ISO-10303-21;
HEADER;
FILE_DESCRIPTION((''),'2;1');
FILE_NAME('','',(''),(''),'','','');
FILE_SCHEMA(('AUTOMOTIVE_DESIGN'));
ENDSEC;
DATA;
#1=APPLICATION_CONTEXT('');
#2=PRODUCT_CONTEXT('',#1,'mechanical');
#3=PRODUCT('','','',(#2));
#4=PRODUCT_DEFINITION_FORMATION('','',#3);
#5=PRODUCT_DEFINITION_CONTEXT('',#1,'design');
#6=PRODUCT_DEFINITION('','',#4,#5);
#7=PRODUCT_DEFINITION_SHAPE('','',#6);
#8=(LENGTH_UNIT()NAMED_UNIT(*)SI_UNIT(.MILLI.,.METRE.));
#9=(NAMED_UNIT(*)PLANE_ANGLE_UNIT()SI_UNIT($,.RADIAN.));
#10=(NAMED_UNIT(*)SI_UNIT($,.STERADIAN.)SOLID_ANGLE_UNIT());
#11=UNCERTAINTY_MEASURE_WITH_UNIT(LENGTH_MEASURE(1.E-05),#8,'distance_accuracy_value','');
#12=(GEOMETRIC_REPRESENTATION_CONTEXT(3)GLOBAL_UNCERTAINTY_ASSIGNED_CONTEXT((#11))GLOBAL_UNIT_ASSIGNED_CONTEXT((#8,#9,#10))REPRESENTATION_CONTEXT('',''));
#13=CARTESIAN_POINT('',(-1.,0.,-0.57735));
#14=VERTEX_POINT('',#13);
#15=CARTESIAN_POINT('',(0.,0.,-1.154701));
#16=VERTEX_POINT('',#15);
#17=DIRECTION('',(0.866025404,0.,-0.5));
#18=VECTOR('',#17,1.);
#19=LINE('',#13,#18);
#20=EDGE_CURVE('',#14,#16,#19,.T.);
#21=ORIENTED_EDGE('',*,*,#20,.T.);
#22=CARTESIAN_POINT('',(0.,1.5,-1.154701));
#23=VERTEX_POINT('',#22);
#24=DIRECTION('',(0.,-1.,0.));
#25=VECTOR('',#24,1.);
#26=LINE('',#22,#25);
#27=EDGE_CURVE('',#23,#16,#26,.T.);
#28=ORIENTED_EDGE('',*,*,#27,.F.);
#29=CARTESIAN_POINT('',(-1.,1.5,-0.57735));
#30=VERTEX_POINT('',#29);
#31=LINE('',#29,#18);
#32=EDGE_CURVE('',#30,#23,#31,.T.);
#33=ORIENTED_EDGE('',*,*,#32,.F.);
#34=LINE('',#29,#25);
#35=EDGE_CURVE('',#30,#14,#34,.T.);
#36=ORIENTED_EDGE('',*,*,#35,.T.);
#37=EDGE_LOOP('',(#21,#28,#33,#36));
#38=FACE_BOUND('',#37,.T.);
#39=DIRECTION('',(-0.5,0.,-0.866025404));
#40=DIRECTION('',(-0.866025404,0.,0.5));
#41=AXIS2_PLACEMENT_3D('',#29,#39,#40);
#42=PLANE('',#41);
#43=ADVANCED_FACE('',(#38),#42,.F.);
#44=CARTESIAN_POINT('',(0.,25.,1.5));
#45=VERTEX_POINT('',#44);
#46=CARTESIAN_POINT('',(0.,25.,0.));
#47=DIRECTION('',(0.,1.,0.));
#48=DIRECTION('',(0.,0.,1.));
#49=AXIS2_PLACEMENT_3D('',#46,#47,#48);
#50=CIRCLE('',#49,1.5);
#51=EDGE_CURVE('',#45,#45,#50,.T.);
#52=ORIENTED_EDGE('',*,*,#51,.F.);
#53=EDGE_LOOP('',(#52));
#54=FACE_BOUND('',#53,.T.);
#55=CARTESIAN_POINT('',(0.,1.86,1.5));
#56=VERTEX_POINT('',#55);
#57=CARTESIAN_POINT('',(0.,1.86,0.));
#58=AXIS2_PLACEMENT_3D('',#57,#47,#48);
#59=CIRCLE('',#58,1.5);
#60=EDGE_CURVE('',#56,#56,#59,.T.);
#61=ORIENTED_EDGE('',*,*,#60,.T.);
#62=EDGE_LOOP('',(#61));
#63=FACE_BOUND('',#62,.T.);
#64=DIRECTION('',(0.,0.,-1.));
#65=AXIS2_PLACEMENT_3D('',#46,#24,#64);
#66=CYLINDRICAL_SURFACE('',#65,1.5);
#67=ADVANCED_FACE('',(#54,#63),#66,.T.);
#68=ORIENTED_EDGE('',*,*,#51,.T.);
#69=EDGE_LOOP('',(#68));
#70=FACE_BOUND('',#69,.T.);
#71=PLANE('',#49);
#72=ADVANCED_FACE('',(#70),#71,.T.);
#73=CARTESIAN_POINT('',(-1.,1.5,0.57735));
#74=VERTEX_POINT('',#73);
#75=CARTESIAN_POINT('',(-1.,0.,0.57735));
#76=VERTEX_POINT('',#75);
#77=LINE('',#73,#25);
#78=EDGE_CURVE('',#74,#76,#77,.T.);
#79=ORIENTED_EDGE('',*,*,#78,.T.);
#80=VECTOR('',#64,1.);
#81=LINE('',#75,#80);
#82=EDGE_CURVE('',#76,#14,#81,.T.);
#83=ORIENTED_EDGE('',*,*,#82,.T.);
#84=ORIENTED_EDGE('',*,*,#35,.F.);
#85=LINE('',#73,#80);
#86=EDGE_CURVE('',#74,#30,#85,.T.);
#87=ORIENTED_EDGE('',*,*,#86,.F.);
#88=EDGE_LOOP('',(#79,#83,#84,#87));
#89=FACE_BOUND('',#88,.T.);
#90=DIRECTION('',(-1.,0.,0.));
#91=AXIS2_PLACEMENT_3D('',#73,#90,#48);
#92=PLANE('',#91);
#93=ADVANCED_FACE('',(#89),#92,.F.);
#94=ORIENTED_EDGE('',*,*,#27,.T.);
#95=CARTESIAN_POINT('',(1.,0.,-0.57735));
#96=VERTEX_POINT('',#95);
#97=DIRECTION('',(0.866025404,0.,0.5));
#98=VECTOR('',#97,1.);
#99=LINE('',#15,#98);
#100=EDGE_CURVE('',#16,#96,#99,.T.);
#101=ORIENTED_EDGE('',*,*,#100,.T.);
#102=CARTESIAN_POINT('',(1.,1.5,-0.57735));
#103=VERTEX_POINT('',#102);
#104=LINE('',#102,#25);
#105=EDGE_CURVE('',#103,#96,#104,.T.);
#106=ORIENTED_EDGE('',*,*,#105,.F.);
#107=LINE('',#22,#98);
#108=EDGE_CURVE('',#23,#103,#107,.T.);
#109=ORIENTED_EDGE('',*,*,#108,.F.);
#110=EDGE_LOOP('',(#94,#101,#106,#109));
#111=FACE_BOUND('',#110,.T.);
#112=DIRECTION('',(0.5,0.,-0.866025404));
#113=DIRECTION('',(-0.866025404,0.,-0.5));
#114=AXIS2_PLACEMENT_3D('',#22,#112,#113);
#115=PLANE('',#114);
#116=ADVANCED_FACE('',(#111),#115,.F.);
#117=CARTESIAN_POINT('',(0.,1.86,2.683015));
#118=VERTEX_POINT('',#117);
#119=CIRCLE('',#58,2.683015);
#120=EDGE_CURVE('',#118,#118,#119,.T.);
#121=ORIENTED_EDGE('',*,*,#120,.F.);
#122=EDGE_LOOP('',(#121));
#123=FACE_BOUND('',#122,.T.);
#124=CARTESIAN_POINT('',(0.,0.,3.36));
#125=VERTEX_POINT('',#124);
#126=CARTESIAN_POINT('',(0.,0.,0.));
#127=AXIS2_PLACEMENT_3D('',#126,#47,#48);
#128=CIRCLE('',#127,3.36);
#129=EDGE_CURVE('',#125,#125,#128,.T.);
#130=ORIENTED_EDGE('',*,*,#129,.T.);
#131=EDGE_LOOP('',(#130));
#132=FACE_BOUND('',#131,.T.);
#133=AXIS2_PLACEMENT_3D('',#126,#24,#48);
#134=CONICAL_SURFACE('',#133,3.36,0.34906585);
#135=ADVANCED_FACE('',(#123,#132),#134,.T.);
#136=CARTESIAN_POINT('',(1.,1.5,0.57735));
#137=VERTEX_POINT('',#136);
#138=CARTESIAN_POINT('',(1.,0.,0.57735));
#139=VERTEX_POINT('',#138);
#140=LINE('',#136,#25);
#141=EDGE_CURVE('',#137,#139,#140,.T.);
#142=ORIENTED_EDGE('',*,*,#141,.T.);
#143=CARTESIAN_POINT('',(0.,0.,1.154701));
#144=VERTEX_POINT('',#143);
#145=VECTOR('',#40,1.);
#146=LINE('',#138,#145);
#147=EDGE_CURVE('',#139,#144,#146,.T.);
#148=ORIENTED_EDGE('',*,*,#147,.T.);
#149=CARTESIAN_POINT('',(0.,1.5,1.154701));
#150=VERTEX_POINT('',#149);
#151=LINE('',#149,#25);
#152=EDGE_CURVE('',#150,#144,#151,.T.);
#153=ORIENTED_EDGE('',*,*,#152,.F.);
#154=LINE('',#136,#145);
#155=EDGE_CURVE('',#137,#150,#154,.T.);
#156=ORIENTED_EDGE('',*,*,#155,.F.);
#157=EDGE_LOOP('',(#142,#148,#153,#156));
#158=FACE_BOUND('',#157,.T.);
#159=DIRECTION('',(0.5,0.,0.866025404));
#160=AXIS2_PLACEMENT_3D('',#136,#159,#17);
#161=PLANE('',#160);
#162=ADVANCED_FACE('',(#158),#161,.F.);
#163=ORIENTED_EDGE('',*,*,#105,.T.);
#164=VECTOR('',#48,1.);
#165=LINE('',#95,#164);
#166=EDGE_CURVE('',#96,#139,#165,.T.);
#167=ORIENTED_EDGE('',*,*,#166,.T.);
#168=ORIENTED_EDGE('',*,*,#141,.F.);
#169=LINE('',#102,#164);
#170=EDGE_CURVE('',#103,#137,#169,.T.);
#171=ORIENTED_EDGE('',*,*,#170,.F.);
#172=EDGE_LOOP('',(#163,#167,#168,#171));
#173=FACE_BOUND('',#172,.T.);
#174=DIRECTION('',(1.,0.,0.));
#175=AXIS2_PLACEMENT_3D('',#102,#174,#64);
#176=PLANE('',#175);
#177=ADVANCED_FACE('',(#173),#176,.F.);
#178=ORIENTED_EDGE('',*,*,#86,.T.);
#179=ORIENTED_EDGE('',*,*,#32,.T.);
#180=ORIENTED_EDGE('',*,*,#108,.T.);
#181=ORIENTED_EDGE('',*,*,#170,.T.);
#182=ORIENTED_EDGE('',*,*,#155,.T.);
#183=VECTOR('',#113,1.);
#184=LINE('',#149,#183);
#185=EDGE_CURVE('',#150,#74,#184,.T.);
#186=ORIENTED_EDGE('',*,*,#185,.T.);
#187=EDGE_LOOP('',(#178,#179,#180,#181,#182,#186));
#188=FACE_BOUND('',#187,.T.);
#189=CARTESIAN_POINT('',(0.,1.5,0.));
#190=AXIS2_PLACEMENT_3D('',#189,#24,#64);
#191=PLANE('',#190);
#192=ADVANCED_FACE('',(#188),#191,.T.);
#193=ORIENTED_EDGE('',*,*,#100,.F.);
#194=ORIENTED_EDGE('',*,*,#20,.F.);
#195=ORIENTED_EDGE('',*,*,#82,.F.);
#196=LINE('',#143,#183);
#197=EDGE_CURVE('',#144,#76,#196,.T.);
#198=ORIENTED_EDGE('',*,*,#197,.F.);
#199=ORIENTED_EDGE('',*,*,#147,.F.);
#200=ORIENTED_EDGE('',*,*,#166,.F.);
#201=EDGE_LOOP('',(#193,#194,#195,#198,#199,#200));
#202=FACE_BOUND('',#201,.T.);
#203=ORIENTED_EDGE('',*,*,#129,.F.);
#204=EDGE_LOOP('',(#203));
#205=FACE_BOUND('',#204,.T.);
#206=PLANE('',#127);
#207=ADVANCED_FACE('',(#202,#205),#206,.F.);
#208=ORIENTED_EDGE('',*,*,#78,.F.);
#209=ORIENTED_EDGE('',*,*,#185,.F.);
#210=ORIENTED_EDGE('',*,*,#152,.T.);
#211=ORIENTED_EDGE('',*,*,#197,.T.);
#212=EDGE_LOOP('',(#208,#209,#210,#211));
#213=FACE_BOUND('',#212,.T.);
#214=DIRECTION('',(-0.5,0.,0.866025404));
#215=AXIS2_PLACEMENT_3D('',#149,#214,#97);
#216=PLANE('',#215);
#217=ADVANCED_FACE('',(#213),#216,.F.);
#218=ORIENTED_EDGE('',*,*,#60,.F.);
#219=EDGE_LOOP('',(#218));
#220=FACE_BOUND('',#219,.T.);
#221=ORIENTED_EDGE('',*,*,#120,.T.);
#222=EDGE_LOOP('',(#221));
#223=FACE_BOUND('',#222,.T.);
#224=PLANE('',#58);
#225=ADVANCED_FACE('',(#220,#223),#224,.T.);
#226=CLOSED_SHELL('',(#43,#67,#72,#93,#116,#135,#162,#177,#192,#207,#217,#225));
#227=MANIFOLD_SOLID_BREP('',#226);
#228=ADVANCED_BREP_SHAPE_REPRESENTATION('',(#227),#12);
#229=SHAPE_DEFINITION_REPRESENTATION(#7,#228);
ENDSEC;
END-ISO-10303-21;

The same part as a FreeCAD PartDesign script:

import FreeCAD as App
import Part
import Sketcher

V = App.Vector
Q = App.Units.Quantity

doc = App.newDocument("Part")
params = doc.addObject("Spreadsheet::Sheet", "Params")
for row, (alias, value) in enumerate([
    ("sketch1_diameter", "6.72 mm"),
    ("pad1_length", "1.86 mm"),
    ("pad1_taper", "-20 deg"),
    ("sketch2_diameter", "3 mm"),
    ("pad2_length", "23.14 mm"),
    ("pocket1_length", "1.5 mm"),
], start=1):
    params.set(f"A{row}", alias)
    params.set(f"B{row}", "=" + value)
    params.setAlias(f"B{row}", alias)

body = doc.addObject("PartDesign::Body", "Body")

sketch1 = body.newObject("Sketcher::SketchObject", "Sketch")
sketch1.AttachmentSupport = (doc.getObject("XZ_Plane"), [""])
sketch1.MapMode = "FlatFace"
sketch1.addGeometry(Part.Circle(V(0, 0, 0), V(0, 0, 1), 3.4), False)
sketch1.addConstraint([
    Sketcher.Constraint("Coincident", 0, 3, -1, 1),
    Sketcher.Constraint("Diameter", 0, Q("6.72 mm")),
])
sketch1.setExpression("Constraints[1]", "Params.sketch1_diameter")
pad1 = body.newObject("PartDesign::Pad", "Pad")
pad1.Profile = sketch1
pad1.setExpression("Length", "Params.pad1_length")
pad1.Reversed = True
pad1.setExpression("TaperAngle", "Params.pad1_taper")

sketch2 = body.newObject("Sketcher::SketchObject", "Sketch001")
sketch2.AttachmentSupport = (doc.getObject("XZ_Plane"), [""])
sketch2.MapMode = "FlatFace"
sketch2.AttachmentOffset = App.Placement(V(0, 0, -1.86), App.Rotation())
sketch2.addGeometry(Part.Circle(V(0, 0, 0), V(0, 0, 1), 1.5), False)
sketch2.addConstraint([
    Sketcher.Constraint("Coincident", 0, 3, -1, 1),
    Sketcher.Constraint("Diameter", 0, Q("3 mm")),
])
sketch2.setExpression("Constraints[1]", "Params.sketch2_diameter")
pad2 = body.newObject("PartDesign::Pad", "Pad001")
pad2.Profile = sketch2
pad2.setExpression("Length", "Params.pad2_length")
pad2.Reversed = True

sketch3 = body.newObject("Sketcher::SketchObject", "Sketch002")
sketch3.AttachmentSupport = (doc.getObject("XZ_Plane"), [""])
sketch3.MapMode = "FlatFace"
sketch3.addGeometry([
    Part.LineSegment(V(0, 1.2, 0), V(-1, 0.6, 0)),
    Part.LineSegment(V(-1, 0.6, 0), V(-1, -0.6, 0)),
    Part.LineSegment(V(-1, -0.6, 0), V(0, -1.2, 0)),
    Part.LineSegment(V(0, -1.2, 0), V(1, -0.6, 0)),
    Part.LineSegment(V(1, -0.6, 0), V(1, 0.6, 0)),
    Part.LineSegment(V(1, 0.6, 0), V(0, 1.2, 0)),
], False)
sketch3.addConstraint([
    Sketcher.Constraint("Coincident", 0, 2, 1, 1),
    Sketcher.Constraint("Coincident", 1, 2, 2, 1),
    Sketcher.Constraint("Coincident", 2, 2, 3, 1),
    Sketcher.Constraint("Coincident", 3, 2, 4, 1),
    Sketcher.Constraint("Coincident", 4, 2, 5, 1),
    Sketcher.Constraint("Coincident", 5, 2, 0, 1),
    Sketcher.Constraint("Vertical", 1),
    Sketcher.Constraint("Vertical", 4),
    Sketcher.Constraint("Symmetric", 0, 2, 3, 2, -1, 1),
    Sketcher.Constraint("Symmetric", 2, 2, 5, 2, -1, 1),
    Sketcher.Constraint("PointOnObject", 2, 2, -2),
    Sketcher.Constraint("Parallel", 2, 5),
    Sketcher.Constraint("Horizontal", 1, 2, 3, 2),
    Sketcher.Constraint("Angle", 0, Q("-150 deg")),
    Sketcher.Constraint("DistanceX", 0, 2, -1, 1, Q("1 mm")),
    Sketcher.Constraint("DistanceY", 1, 2, 1, 1, Q("1.154701 mm")),
])
pocket1 = body.newObject("PartDesign::Pocket", "Pocket")
pocket1.Profile = sketch3
pocket1.setExpression("Length", "Params.pocket1_length")

doc.recompute()
